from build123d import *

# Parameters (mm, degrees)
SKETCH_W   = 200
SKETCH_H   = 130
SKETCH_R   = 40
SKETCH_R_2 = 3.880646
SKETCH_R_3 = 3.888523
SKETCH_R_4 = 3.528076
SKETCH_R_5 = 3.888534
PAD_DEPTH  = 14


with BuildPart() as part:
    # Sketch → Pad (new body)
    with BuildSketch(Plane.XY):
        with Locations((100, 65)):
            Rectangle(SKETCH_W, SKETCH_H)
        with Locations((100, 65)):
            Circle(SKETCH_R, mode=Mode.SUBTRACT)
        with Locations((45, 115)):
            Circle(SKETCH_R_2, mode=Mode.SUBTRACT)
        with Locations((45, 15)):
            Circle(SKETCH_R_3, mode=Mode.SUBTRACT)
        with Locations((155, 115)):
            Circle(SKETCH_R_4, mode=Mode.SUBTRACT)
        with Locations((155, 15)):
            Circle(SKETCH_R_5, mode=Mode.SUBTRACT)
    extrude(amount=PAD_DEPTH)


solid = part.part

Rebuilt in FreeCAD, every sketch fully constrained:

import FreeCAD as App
import Part
import Sketcher

V = App.Vector
Q = App.Units.Quantity


def add_polygon(sketch, points):
    """Adds a closed chain of lines whose ends are joined by coincident constraints."""
    first, n = sketch.GeometryCount, len(points)
    for a, b in zip(points, points[1:] + points[:1]):
        sketch.addGeometry(Part.LineSegment(App.Vector(*a, 0), App.Vector(*b, 0)), False)
    for i in range(n):
        sketch.addConstraint(Sketcher.Constraint("Coincident", first + i, 2, first + (i + 1) % n, 1))

doc = App.newDocument("Part")
params = doc.addObject("Spreadsheet::Sheet", "Params")
for row, (alias, value) in enumerate([
    ("sketch1_diameter", "80 mm"),
    ("sketch1_width", "200 mm"),
    ("sketch1_height", "130 mm"),
    ("pad1_length", "14 mm"),
], start=1):
    params.set(f"A{row}", alias)
    params.set(f"B{row}", "=" + value)
    params.setAlias(f"B{row}", alias)

body = doc.addObject("PartDesign::Body", "Body")

# Sketch on XY plane
sketch1 = body.newObject("Sketcher::SketchObject", "Sketch")
sketch1.AttachmentSupport = (doc.getObject("XY_Plane"), [""])
sketch1.MapMode = "FlatFace"
add_polygon(sketch1, [(0, 130), (0, 0), (200, 0), (200, 130)])  # lines 0-3
sketch1.addGeometry(Part.Circle(V(45, 15, 0), V(0, 0, 1), 3.888523), False)  # 4
sketch1.addGeometry(Part.Circle(V(155, 15, 0), V(0, 0, 1), 3.888534), False)  # 5
sketch1.addGeometry(Part.Circle(V(100, 65, 0), V(0, 0, 1), 40), False)  # 6
sketch1.addGeometry(Part.Circle(V(45, 115, 0), V(0, 0, 1), 3.880646), False)  # 7
sketch1.addGeometry(Part.Circle(V(155, 115, 0), V(0, 0, 1), 3.528076), False)  # 8
sketch1.addConstraint([
    Sketcher.Constraint("Vertical", 0),
    Sketcher.Constraint("Horizontal", 1),
    Sketcher.Constraint("Vertical", 2),
    Sketcher.Constraint("Horizontal", 3),
    Sketcher.Constraint("Coincident", 0, 2, -1, 1),
    Sketcher.Constraint("Horizontal", 4, 3, 5, 3),
    Sketcher.Constraint("Horizontal", 7, 3, 8, 3),
    Sketcher.Constraint("Vertical", 4, 3, 7, 3),
    Sketcher.Constraint("Vertical", 5, 3, 8, 3),
    Sketcher.Constraint("Diameter", 6, Q("80 mm")),
    Sketcher.Constraint("DistanceX", 1, 1, 1, 2, Q("200 mm")),
    Sketcher.Constraint("DistanceY", 0, 2, 0, 1, Q("130 mm")),
    Sketcher.Constraint("DistanceX", -1, 1, 4, 3, Q("45 mm")),
    Sketcher.Constraint("DistanceY", -1, 1, 4, 3, Q("15 mm")),
    Sketcher.Constraint("DistanceX", -1, 1, 5, 3, Q("155 mm")),
    Sketcher.Constraint("DistanceX", -1, 1, 6, 3, Q("100 mm")),
    Sketcher.Constraint("DistanceY", -1, 1, 6, 3, Q("65 mm")),
    Sketcher.Constraint("DistanceY", -1, 1, 7, 3, Q("115 mm")),
    Sketcher.Constraint("Diameter", 4, Q("7.777046 mm")),
    Sketcher.Constraint("Diameter", 5, Q("7.777068 mm")),
    Sketcher.Constraint("Diameter", 7, Q("7.761292 mm")),
    Sketcher.Constraint("Diameter", 8, Q("7.056152 mm")),
])
sketch1.setExpression("Constraints[13]", "Params.sketch1_diameter")
sketch1.setExpression("Constraints[14]", "Params.sketch1_width")
sketch1.setExpression("Constraints[15]", "Params.sketch1_height")
pad1 = body.newObject("PartDesign::Pad", "Pad")
pad1.Profile = sketch1
pad1.setExpression("Length", "Params.pad1_length")

doc.recompute()
